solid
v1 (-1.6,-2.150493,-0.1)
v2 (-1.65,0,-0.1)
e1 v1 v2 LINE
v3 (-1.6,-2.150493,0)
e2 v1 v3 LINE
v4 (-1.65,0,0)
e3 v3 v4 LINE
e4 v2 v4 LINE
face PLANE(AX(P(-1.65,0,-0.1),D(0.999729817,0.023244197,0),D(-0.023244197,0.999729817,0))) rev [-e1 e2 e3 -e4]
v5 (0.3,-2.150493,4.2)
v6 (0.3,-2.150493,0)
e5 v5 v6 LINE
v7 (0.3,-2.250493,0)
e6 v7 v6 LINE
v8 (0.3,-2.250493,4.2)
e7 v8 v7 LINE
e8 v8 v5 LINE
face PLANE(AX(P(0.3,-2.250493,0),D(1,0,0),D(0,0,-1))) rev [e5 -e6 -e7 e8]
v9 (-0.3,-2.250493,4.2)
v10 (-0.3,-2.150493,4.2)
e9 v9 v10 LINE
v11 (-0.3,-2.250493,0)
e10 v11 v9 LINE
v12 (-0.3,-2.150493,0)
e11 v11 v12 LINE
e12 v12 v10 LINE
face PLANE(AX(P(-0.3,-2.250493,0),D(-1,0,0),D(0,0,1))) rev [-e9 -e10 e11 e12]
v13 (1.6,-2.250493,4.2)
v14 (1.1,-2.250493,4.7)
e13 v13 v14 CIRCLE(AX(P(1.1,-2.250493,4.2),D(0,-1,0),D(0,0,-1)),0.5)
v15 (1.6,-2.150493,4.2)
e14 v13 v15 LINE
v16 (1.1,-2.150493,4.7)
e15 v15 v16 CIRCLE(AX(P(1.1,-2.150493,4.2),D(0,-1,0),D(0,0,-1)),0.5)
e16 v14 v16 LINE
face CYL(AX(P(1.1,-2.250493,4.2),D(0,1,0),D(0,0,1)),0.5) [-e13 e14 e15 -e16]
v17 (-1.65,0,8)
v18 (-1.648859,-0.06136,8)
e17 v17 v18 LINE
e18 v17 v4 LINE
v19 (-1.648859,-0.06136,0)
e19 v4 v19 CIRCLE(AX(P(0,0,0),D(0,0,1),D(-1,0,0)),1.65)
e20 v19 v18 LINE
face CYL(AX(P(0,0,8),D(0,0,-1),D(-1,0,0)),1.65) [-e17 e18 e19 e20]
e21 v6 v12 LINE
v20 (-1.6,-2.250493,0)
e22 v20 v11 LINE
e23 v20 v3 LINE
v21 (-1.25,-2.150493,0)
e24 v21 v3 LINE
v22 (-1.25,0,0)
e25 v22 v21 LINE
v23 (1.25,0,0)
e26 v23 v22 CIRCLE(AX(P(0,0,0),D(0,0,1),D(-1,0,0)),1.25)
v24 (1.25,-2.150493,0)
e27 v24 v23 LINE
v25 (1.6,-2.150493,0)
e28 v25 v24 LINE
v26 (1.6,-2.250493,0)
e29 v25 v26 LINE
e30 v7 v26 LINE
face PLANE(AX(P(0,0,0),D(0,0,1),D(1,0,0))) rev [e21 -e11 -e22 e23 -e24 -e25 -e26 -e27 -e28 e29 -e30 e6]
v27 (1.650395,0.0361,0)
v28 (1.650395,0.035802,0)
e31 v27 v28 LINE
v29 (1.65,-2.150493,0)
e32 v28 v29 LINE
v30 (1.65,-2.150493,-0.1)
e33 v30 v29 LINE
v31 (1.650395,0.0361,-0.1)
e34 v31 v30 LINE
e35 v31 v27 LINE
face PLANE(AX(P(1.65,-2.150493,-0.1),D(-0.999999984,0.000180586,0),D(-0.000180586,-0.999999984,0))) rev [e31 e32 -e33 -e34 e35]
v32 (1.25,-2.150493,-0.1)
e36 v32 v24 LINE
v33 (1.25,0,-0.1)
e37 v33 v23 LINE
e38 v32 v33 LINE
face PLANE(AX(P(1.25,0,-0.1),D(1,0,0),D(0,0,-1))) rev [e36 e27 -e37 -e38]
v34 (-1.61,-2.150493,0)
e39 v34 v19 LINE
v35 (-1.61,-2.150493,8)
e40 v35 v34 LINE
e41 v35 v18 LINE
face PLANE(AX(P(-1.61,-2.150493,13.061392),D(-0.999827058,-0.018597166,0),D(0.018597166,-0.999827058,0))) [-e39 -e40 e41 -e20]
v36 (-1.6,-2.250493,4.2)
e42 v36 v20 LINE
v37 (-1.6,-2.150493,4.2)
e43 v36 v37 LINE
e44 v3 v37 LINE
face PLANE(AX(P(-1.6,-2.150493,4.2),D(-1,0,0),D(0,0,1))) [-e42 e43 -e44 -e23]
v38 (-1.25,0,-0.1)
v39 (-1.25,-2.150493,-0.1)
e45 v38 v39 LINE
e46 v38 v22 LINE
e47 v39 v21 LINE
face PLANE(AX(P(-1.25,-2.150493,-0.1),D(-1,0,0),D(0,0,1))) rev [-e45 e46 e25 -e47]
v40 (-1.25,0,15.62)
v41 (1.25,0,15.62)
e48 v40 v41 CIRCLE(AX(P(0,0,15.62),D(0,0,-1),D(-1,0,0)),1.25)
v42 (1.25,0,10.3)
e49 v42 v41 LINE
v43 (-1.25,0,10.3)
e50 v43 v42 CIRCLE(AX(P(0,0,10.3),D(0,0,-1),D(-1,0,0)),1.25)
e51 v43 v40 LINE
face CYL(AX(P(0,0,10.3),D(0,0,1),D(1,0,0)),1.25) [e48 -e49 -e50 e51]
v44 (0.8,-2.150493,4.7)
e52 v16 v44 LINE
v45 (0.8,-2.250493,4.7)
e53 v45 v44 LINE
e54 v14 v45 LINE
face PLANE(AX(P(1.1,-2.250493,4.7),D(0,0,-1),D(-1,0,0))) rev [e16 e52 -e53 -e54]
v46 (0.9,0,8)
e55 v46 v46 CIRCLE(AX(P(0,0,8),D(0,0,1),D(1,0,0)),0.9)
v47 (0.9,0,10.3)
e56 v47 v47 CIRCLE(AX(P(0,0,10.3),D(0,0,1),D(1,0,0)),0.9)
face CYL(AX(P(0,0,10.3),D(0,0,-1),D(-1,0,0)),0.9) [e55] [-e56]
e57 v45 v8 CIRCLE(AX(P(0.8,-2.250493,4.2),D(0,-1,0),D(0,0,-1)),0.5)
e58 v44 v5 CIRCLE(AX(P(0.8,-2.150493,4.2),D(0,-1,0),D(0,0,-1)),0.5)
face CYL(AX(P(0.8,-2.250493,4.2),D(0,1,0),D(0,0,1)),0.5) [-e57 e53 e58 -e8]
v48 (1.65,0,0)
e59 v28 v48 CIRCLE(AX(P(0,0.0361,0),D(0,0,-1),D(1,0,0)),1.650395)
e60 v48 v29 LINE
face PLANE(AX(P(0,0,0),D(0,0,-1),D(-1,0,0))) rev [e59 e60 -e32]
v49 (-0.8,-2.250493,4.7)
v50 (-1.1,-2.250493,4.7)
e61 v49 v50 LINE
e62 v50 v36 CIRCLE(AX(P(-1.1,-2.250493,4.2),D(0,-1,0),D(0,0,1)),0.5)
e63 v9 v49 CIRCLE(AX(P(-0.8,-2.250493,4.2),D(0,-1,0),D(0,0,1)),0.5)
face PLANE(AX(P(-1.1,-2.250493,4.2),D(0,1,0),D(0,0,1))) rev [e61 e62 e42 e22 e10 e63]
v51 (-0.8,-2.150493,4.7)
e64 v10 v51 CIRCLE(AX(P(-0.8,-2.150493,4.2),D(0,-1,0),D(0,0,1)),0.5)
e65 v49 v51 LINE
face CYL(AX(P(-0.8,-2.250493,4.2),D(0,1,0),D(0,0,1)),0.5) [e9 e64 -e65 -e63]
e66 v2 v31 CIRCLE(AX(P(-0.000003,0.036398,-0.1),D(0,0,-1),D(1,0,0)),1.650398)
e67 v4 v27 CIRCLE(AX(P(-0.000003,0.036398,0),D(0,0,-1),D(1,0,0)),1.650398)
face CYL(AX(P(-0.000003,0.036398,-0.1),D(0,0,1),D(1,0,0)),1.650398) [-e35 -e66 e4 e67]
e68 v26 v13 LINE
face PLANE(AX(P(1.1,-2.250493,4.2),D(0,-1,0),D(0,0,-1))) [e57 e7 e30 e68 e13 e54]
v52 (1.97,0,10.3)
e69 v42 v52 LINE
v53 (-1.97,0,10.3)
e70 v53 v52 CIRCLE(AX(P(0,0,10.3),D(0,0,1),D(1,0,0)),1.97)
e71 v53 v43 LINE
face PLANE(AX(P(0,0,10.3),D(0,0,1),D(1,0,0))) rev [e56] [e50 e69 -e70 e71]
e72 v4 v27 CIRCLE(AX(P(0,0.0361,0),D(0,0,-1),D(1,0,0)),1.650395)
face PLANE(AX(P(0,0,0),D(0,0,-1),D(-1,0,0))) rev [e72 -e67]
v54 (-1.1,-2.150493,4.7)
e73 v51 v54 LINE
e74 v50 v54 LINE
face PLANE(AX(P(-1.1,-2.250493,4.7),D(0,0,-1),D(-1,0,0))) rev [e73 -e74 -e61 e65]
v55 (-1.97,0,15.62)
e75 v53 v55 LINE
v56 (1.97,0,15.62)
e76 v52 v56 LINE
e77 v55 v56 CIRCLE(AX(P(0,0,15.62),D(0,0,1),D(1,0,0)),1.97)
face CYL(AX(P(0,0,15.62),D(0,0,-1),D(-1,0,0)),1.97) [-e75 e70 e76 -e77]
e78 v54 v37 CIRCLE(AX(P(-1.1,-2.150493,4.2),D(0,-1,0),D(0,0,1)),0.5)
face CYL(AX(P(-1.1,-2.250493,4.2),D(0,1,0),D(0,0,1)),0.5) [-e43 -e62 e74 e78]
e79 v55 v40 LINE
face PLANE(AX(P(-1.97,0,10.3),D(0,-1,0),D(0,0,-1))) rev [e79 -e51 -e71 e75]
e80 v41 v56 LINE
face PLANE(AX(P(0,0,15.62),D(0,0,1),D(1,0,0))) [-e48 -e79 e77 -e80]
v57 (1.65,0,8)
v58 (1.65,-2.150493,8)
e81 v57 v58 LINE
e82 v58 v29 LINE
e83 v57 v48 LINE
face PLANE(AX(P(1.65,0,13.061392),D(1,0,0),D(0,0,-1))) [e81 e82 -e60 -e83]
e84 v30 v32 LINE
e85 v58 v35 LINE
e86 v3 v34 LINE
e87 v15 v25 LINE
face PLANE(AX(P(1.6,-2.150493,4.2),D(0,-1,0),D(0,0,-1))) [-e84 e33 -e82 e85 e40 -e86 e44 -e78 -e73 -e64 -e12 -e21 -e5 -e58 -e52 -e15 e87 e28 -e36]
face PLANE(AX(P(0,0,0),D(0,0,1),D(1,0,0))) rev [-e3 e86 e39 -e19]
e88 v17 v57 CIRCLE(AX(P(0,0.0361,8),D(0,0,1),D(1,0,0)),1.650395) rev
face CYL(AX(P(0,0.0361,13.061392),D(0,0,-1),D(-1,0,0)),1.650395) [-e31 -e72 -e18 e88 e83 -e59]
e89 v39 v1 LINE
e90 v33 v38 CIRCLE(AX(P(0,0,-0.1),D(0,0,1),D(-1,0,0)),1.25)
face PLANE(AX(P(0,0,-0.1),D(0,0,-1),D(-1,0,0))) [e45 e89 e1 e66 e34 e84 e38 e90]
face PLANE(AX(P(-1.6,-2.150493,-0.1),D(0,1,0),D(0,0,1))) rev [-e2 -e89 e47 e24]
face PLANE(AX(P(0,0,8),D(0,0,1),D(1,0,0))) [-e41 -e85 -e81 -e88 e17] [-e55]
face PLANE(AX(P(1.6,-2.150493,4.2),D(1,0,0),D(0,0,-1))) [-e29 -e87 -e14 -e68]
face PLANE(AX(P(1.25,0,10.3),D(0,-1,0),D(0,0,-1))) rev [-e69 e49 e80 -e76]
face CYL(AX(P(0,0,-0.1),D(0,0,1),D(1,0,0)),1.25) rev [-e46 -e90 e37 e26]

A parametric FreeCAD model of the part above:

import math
import FreeCAD as App
import Part
import Sketcher

V = App.Vector
Q = App.Units.Quantity

doc = App.newDocument("Part")
body = doc.addObject("PartDesign::Body", "Body")

sketch1 = body.newObject("Sketcher::SketchObject", "Sketch")
sketch1.AttachmentSupport = (doc.getObject("XY_Plane"), [""])
sketch1.MapMode = "FlatFace"
sketch1.addGeometry(Part.Circle(V(0, 0, 0), V(0, 0, 1), 1.6), False)
sketch1.addConstraint([
    Sketcher.Constraint("Coincident", 0, 3, -1, 1),
    Sketcher.Constraint("Diameter", 0, Q("3.3 mm")),
])
pad1 = body.newObject("PartDesign::Pad", "Pad")
pad1.Profile = sketch1
pad1.Length = 8

sketch2 = body.newObject("Sketcher::SketchObject", "Sketch001")
sketch2.AttachmentSupport = (doc.getObject("XY_Plane"), [""])
sketch2.MapMode = "FlatFace"
sketch2.addGeometry([
    Part.LineSegment(V(1.6, 0.1, 0), V(1.6, -2.2, 0)),
    Part.LineSegment(V(1.6, -2.2, 0), V(-1.6, -2.2, 0)),
    Part.LineSegment(V(-1.6, -2.2, 0), V(-1.6, 0.1, 0)),
    Part.LineSegment(V(-1.6, 0.1, 0), V(1.6, 0.1, 0)),
], False)
sketch2.addConstraint([
    Sketcher.Constraint("Coincident", 0, 2, 1, 1),
    Sketcher.Constraint("Coincident", 1, 2, 2, 1),
    Sketcher.Constraint("Coincident", 2, 2, 3, 1),
    Sketcher.Constraint("Coincident", 3, 2, 0, 1),
    Sketcher.Constraint("Vertical", 0),
    Sketcher.Constraint("Horizontal", 1),
    Sketcher.Constraint("Vertical", 2),
    Sketcher.Constraint("Horizontal", 3),
    Sketcher.Constraint("DistanceX", 1, 2, 1, 1, Q("3.2 mm")),
    Sketcher.Constraint("DistanceX", -1, 1, 0, 2, Q("1.6 mm")),
    Sketcher.Constraint("DistanceY", 0, 2, 0, 1, Q("2.278116 mm")),
    Sketcher.Constraint("DistanceY", 0, 2, -1, 1, Q("2.150493 mm")),
])
pad2 = body.newObject("PartDesign::Pad", "Pad001")
pad2.Profile = sketch2
pad2.Length = 4.2

sketch3 = body.newObject("Sketcher::SketchObject", "Sketch002")
sketch3.AttachmentSupport = (doc.getObject("XY_Plane"), [""])
sketch3.MapMode = "FlatFace"
sketch3.AttachmentOffset = App.Placement(V(0, 0, 8), App.Rotation())
sketch3.addGeometry(Part.Circle(V(0, 0, 0), V(0, 0, 1), 0.9), False)
sketch3.addConstraint([
    Sketcher.Constraint("Coincident", 0, 3, -1, 1),
    Sketcher.Constraint("Diameter", 0, Q("1.8 mm")),
])
pad3 = body.newObject("PartDesign::Pad", "Pad002")
pad3.Profile = sketch3
pad3.Length = 2.3

sketch4 = body.newObject("Sketcher::SketchObject", "Sketch003")
sketch4.AttachmentSupport = (doc.getObject("XY_Plane"), [""])
sketch4.MapMode = "FlatFace"
sketch4.AttachmentOffset = App.Placement(V(0, 0, 10.3), App.Rotation())
sketch4.addGeometry(Part.Circle(V(0, 0, 0), V(0, 0, 1), 2), False)
sketch4.addConstraint([
    Sketcher.Constraint("Coincident", 0, 3, -1, 1),
    Sketcher.Constraint("Diameter", 0, Q("3.94 mm")),
])
pad4 = body.newObject("PartDesign::Pad", "Pad003")
pad4.Profile = sketch4
pad4.Length = 5.32

sketch5 = body.newObject("Sketcher::SketchObject", "Sketch004")
sketch5.AttachmentSupport = (doc.getObject("XY_Plane"), [""])
sketch5.MapMode = "FlatFace"
sketch5.AttachmentOffset = App.Placement(V(0, 0, 10.3), App.Rotation())
sketch5.addGeometry([
    Part.LineSegment(V(-2, 0, 0), V(-1.2, 0, 0)),
    Part.ArcOfCircle(Part.Circle(V(0, 0, 0), V(0, 0, 1), 1.2), math.radians(0), math.radians(180)),
    Part.LineSegment(V(1.2, 0, 0), V(2, 0, 0)),
    Part.ArcOfCircle(Part.Circle(V(0, 0, 0), V(0, 0, 1), 2), math.radians(0), math.radians(180)),
], False)
sketch5.addConstraint([
    Sketcher.Constraint("Coincident", 0, 2, 1, 2),
    Sketcher.Constraint("Coincident", 1, 1, 2, 1),
    Sketcher.Constraint("Coincident", 2, 2, 3, 1),
    Sketcher.Constraint("Coincident", 3, 2, 0, 1),
    Sketcher.Constraint("Horizontal", 0),
    Sketcher.Constraint("Horizontal", 2),
    Sketcher.Constraint("Coincident", 1, 3, -1, 1),
    Sketcher.Constraint("Coincident", 3, 3, -1, 1),
    Sketcher.Constraint("PointOnObject", 0, 2, -1),
    Sketcher.Constraint("PointOnObject", 1, 1, -1),
    Sketcher.Constraint("Radius", 1, Q("1.25 mm")),
    Sketcher.Constraint("Radius", 3, Q("1.97 mm")),
])
pocket1 = body.newObject("PartDesign::Pocket", "Pocket")
pocket1.Profile = sketch5
pocket1.Length = 5.32
pocket1.Reversed = True

sketch6 = body.newObject("Sketcher::SketchObject", "Sketch005")
sketch6.AttachmentSupport = (doc.getObject("XZ_Plane"), [""])
sketch6.MapMode = "FlatFace"
sketch6.AttachmentOffset = App.Placement(V(0, 0, 2.150493), App.Rotation())
sketch6.addGeometry([
    Part.LineSegment(V(0.3, 0, 0), V(1.6, 0, 0)),
    Part.LineSegment(V(1.6, 0, 0), V(1.6, 4.2, 0)),
    Part.ArcOfCircle(Part.Circle(V(1.1, 4.2, 0), V(0, 0, 1), 0.5), math.radians(0), math.radians(90)),
    Part.LineSegment(V(1.1, 4.7, 0), V(0.8, 4.7, 0)),
    Part.ArcOfCircle(Part.Circle(V(0.8, 4.2, 0), V(0, 0, 1), 0.5), math.radians(90), math.radians(180)),
    Part.LineSegment(V(0.3, 4.2, 0), V(0.3, 0, 0)),
    Part.LineSegment(V(-1.6, 0, 0), V(-0.3, 0, 0)),
    Part.LineSegment(V(-0.3, 0, 0), V(-0.3, 4.2, 0)),
    Part.ArcOfCircle(Part.Circle(V(-0.8, 4.2, 0), V(0, 0, 1), 0.5), math.radians(0), math.radians(90)),
    Part.LineSegment(V(-0.8, 4.7, 0), V(-1.1, 4.7, 0)),
    Part.ArcOfCircle(Part.Circle(V(-1.1, 4.2, 0), V(0, 0, 1), 0.5), math.radians(90), math.radians(180)),
    Part.LineSegment(V(-1.6, 4.2, 0), V(-1.6, 0, 0)),
], False)
sketch6.addConstraint([
    Sketcher.Constraint("Coincident", 0, 2, 1, 1),
    Sketcher.Constraint("Tangent", 1, 2, 2, 1),
    Sketcher.Constraint("Tangent", 2, 2, 3, 1),
    Sketcher.Constraint("Tangent", 3, 2, 4, 1),
    Sketcher.Constraint("Tangent", 4, 2, 5, 1),
    Sketcher.Constraint("Coincident", 5, 2, 0, 1),
    Sketcher.Constraint("Coincident", 6, 2, 7, 1),
    Sketcher.Constraint("Tangent", 7, 2, 8, 1),
    Sketcher.Constraint("Tangent", 8, 2, 9, 1),
    Sketcher.Constraint("Tangent", 9, 2, 10, 1),
    Sketcher.Constraint("Tangent", 10, 2, 11, 1),
    Sketcher.Constraint("Coincident", 11, 2, 6, 1),
    Sketcher.Constraint("Horizontal", 0),
    Sketcher.Constraint("Vertical", 1),
    Sketcher.Constraint("Horizontal", 3),
    Sketcher.Constraint("Vertical", 5),
    Sketcher.Constraint("Horizontal", 6),
    Sketcher.Constraint("Vertical", 7),
    Sketcher.Constraint("Horizontal", 9),
    Sketcher.Constraint("Vertical", 11),
    Sketcher.Constraint("Equal", 2, 4),
    Sketcher.Constraint("Equal", 4, 8),
    Sketcher.Constraint("Equal", 8, 10),
    Sketcher.Constraint("Symmetric", 5, 2, 6, 2, -1, 1),
    Sketcher.Constraint("Symmetric", 2, 3, 10, 3, -2),
    Sketcher.Constraint("PointOnObject", 0, 2, -1),
    Sketcher.Constraint("Radius", 2, Q("0.5 mm")),
    Sketcher.Constraint("DistanceX", 0, 1, 0, 2, Q("1.3 mm")),
    Sketcher.Constraint("DistanceY", 1, 1, 1, 2, Q("4.2 mm")),
    Sketcher.Constraint("DistanceX", -1, 1, 2, 3, Q("1.1 mm")),
])
pad5 = body.newObject("PartDesign::Pad", "Pad004")
pad5.Profile = sketch6
pad5.Length = 0.1

sketch7 = body.newObject("Sketcher::SketchObject", "Sketch006")
sketch7.AttachmentSupport = (doc.getObject("XY_Plane"), [""])
sketch7.MapMode = "FlatFace"
sketch7.addGeometry([
    Part.LineSegment(V(1.6, 0, 0), V(1.6, -2.2, 0)),
    Part.LineSegment(V(1.6, -2.2, 0), V(-1.6, -2.2, 0)),
    Part.LineSegment(V(-1.6, -2.2, 0), V(-1.6, 0, 0)),
    Part.ArcOfCircle(Part.Circle(V(0, 0, 0), V(0, 0, 1), 1.7), math.radians(-1), math.radians(181)),
], False)
sketch7.addConstraint([
    Sketcher.Constraint("Coincident", 0, 2, 1, 1),
    Sketcher.Constraint("Coincident", 1, 2, 2, 1),
    Sketcher.Constraint("Coincident", 2, 2, 3, 2),
    Sketcher.Constraint("Coincident", 3, 1, 0, 1),
    Sketcher.Constraint("Vertical", 0),
    Sketcher.Constraint("Horizontal", 1),
    Sketcher.Constraint("Symmetric", 2, 2, 3, 1, -1, 1),
    Sketcher.Constraint("PointOnObject", 3, 3, -2),
    Sketcher.Constraint("DistanceX", 1, 2, 1, 1, Q("3.26 mm")),
    Sketcher.Constraint("DistanceX", 2, 2, 0, 2, Q("3.3 mm")),
    Sketcher.Constraint("Radius", 3, Q("1.650395 mm")),
    Sketcher.Constraint("DistanceY", 0, 2, 0, 1, Q("2.150493 mm")),
])
pad6 = body.newObject("PartDesign::Pad", "Pad005")
pad6.Profile = sketch7
pad6.Length = 8

sketch8 = body.newObject("Sketcher::SketchObject", "Sketch007")
sketch8.AttachmentSupport = (doc.getObject("XY_Plane"), [""])
sketch8.MapMode = "FlatFace"
sketch8.AttachmentOffset = App.Placement(V(0, 0, -0.1), App.Rotation())
sketch8.addGeometry([
    Part.LineSegment(V(1.25, -2.15, 0), V(1.25, 0, 0)),
    Part.ArcOfCircle(Part.Circle(V(0, 0, 0), V(0, 0, 1), 1.25), math.radians(0), math.radians(180)),
    Part.LineSegment(V(-1.25, 0, 0), V(-1.25, -2.15, 0)),
    Part.LineSegment(V(-1.25, -2.15, 0), V(-1.6, -2.15, 0)),
    Part.LineSegment(V(-1.6, -2.15, 0), V(-1.65, 0, 0)),
    Part.ArcOfCircle(Part.Circle(V(0, 0.04, 0), V(0, 0, 1), 1.65), math.radians(0), math.radians(181)),
    Part.LineSegment(V(1.65, 0.04, 0), V(1.65, -2.15, 0)),
    Part.LineSegment(V(1.65, -2.15, 0), V(1.25, -2.15, 0)),
], False)
sketch8.addConstraint([
    Sketcher.Constraint("Tangent", 0, 2, 1, 1),
    Sketcher.Constraint("Tangent", 1, 2, 2, 1),
    Sketcher.Constraint("Coincident", 2, 2, 3, 1),
    Sketcher.Constraint("Coincident", 3, 2, 4, 1),
    Sketcher.Constraint("Coincident", 4, 2, 5, 2),
    Sketcher.Constraint("Tangent", 5, 1, 6, 1),
    Sketcher.Constraint("Coincident", 6, 2, 7, 1),
    Sketcher.Constraint("Coincident", 7, 2, 0, 1),
    Sketcher.Constraint("Vertical", 0),
    Sketcher.Constraint("Vertical", 2),
    Sketcher.Constraint("Horizontal", 3),
    Sketcher.Constraint("Horizontal", 7),
    Sketcher.Constraint("Coincident", 1, 3, -1, 1),
    Sketcher.Constraint("PointOnObject", 4, 2, -1),
    Sketcher.Constraint("Horizontal", 3, 2, 6, 2),
    Sketcher.Constraint("Radius", 1, Q("1.25 mm")),
    Sketcher.Constraint("DistanceX", 7, 2, 7, 1, Q("0.4 mm")),
    Sketcher.Constraint("DistanceX", 3, 2, 3, 1, Q("0.35 mm")),
    Sketcher.Constraint("Radius", 5, Q("1.650398 mm")),
    Sketcher.Constraint("DistanceX", 4, 2, 1, 2, Q("0.4 mm")),
    Sketcher.Constraint("DistanceY", -1, 1, 5, 3, Q("0.036398 mm")),
    Sketcher.Constraint("DistanceY", 0, 1, 0, 2, Q("2.150493 mm")),
])
pad7 = body.newObject("PartDesign::Pad", "Pad006")
pad7.Profile = sketch8
pad7.Length = 0.1

doc.recompute()
